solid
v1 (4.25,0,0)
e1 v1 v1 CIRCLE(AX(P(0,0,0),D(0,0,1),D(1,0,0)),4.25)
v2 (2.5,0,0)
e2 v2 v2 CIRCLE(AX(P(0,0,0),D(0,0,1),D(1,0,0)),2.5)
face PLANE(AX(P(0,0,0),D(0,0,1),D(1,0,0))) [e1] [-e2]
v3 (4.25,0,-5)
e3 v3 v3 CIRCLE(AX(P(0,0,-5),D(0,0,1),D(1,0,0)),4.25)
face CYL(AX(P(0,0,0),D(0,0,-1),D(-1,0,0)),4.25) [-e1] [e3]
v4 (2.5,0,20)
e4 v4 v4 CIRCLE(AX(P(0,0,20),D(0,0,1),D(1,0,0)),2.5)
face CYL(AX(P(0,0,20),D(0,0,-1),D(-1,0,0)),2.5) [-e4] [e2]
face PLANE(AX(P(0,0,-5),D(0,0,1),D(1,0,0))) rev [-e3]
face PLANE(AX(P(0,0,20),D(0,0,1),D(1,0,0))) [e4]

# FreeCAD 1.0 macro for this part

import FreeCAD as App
import Part
import Sketcher
from FreeCAD import Vector

doc = App.newDocument("Part")
body = doc.addObject("PartDesign::Body", "Body")

sketch1 = body.newObject("Sketcher::SketchObject", "Sketch")
sketch1.AttachmentSupport = (doc.getObject("XY_Plane"), [""])
sketch1.MapMode = "FlatFace"
sketch1.AttachmentOffset = App.Placement(Vector(0, 0, -5), App.Rotation())
sketch1.addGeometry(Part.Circle(Vector(0, 0, 0), Vector(0, 0, 1), 4.25), False)
sketch1.addConstraint(Sketcher.Constraint("Coincident", 0, 3, -1, 1))
sketch1.addConstraint(Sketcher.Constraint("Diameter", 0, 8.5))
pad1 = body.newObject("PartDesign::Pad", "Pad")
pad1.Profile = sketch1
pad1.Length = 5

sketch2 = body.newObject("Sketcher::SketchObject", "Sketch001")
sketch2.AttachmentSupport = (doc.getObject("XY_Plane"), [""])
sketch2.MapMode = "FlatFace"
sketch2.addGeometry(Part.Circle(Vector(0, 0, 0), Vector(0, 0, 1), 2.5), False)
sketch2.addConstraint(Sketcher.Constraint("Coincident", 0, 3, -1, 1))
sketch2.addConstraint(Sketcher.Constraint("Diameter", 0, 5.0))
pad2 = body.newObject("PartDesign::Pad", "Pad001")
pad2.Profile = sketch2
pad2.Length = 20

doc.recompute()
